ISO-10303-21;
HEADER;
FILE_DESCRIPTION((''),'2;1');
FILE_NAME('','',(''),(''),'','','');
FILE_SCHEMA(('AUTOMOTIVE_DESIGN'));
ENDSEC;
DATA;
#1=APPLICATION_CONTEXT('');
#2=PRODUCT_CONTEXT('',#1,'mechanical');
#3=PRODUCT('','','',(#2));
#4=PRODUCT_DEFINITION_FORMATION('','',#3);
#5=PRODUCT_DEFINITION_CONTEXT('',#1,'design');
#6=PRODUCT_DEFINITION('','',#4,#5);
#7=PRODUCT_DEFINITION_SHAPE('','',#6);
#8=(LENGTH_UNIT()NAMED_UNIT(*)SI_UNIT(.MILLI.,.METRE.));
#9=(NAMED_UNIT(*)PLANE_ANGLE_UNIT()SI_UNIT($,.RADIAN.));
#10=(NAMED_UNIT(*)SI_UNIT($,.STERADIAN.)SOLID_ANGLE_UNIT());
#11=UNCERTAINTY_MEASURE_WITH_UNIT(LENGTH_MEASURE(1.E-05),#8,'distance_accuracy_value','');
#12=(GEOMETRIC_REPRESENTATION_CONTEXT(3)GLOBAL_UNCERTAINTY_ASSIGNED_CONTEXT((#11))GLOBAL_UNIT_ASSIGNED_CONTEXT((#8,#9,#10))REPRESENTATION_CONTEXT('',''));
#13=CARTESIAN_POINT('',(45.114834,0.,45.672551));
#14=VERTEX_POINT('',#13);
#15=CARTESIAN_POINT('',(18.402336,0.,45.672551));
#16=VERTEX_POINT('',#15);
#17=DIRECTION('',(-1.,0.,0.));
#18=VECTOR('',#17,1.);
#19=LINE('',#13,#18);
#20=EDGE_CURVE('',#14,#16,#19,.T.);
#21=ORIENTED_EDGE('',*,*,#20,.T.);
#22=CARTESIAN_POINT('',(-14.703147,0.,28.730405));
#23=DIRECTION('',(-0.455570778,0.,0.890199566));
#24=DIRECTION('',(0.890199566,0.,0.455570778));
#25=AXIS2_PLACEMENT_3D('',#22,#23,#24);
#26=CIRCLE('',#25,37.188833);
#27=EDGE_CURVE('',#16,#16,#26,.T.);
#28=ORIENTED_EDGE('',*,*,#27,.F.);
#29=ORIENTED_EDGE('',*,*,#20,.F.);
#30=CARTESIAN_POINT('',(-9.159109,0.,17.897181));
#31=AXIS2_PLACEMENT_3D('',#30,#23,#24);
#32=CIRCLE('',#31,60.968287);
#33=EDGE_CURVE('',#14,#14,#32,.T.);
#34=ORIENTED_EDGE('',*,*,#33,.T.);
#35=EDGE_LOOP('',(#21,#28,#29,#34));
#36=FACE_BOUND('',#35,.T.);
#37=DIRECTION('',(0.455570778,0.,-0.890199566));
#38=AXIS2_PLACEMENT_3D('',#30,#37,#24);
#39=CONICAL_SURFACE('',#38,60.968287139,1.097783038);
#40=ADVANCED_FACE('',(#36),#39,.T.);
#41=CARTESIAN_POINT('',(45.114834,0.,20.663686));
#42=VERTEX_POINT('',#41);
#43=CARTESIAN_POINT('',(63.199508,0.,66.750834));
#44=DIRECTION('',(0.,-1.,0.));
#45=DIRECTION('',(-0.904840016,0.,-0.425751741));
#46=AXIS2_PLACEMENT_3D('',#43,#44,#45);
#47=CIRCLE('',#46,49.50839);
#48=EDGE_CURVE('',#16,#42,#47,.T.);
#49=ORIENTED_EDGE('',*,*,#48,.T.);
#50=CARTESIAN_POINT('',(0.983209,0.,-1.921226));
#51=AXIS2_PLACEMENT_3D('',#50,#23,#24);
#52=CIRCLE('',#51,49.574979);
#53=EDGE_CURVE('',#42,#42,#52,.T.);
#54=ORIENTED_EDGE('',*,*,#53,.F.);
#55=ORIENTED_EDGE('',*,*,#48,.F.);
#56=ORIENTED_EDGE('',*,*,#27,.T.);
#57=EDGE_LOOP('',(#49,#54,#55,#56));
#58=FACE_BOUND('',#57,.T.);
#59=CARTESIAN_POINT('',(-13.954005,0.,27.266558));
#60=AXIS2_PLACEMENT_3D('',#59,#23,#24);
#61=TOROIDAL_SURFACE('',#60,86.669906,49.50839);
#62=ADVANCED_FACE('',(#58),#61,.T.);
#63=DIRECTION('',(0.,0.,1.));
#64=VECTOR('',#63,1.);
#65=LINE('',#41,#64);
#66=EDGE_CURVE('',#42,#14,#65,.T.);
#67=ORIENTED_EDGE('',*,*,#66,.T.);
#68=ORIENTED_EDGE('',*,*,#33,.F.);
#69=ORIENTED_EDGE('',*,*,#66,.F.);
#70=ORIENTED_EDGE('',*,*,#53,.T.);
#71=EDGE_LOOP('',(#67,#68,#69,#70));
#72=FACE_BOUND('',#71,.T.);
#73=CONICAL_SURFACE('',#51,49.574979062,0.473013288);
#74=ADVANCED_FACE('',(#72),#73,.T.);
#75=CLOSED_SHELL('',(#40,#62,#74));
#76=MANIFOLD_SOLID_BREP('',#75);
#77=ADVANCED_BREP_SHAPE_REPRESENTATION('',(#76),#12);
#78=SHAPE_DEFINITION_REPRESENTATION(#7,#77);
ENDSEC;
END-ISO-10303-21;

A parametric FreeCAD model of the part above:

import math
import FreeCAD as App
import Part
import Sketcher
from FreeCAD import Vector
Q = App.Units.Quantity

doc = App.newDocument("Part")
body = doc.addObject("PartDesign::Body", "Body")

sketch1 = body.newObject("Sketcher::SketchObject", "Sketch")
sketch1.AttachmentSupport = (doc.getObject("XZ_Plane"), [""])
sketch1.MapMode = "FlatFace"
sketch1.addGeometry(Part.ArcOfCircle(Part.Circle(Vector(63, 67, 0), Vector(0, 0, 1), 50), math.radians(-155), math.radians(-111)), False)
sketch1.addGeometry(Part.LineSegment(Vector(45, 21, 0), Vector(45, 46, 0)), False)
sketch1.addGeometry(Part.LineSegment(Vector(45, 46, 0), Vector(18, 46, 0)), False)
sketch1.addGeometry(Part.LineSegment(Vector(1, -2, 0), Vector(-15, 29, 0)), True)
sketch1.addConstraint(Sketcher.Constraint("Coincident", 0, 2, 1, 1))
sketch1.addConstraint(Sketcher.Constraint("Coincident", 1, 2, 2, 1))
sketch1.addConstraint(Sketcher.Constraint("Coincident", 2, 2, 0, 1))
sketch1.addConstraint(Sketcher.Constraint("Vertical", 1))
sketch1.addConstraint(Sketcher.Constraint("Horizontal", 2))
sketch1.addConstraint(Sketcher.Constraint("Radius", 0, Q("49.50839 mm")))
sketch1.addConstraint(Sketcher.Constraint("DistanceX", 2, 2, 2, 1, Q("26.712498 mm")))
sketch1.addConstraint(Sketcher.Constraint("DistanceX", 3, 1, 0, 3, Q("62.216299 mm")))
sketch1.addConstraint(Sketcher.Constraint("DistanceY", 1, 1, 1, 2, Q("25.008865 mm")))
sketch1.addConstraint(Sketcher.Constraint("DistanceX", -1, 1, 0, 3, Q("63.199508 mm")))
sketch1.addConstraint(Sketcher.Constraint("DistanceY", -1, 1, 1, 2, Q("45.672551 mm")))
sketch1.addConstraint(Sketcher.Constraint("DistanceY", 3, 1, 0, 2, Q("22.584912 mm")))
sketch1.addConstraint(Sketcher.Constraint("DistanceY", 3, 1, 3, 2, Q("30.651631 mm")))
sketch1.addConstraint(Sketcher.Constraint("DistanceX", 3, 2, 0, 2, Q("59.817981 mm")))
revolution = body.newObject("PartDesign::Revolution", "Revolution")
revolution.Profile = sketch1
revolution.ReferenceAxis = (sketch1, ["Axis0"])
revolution.Angle = 360

doc.recompute()
